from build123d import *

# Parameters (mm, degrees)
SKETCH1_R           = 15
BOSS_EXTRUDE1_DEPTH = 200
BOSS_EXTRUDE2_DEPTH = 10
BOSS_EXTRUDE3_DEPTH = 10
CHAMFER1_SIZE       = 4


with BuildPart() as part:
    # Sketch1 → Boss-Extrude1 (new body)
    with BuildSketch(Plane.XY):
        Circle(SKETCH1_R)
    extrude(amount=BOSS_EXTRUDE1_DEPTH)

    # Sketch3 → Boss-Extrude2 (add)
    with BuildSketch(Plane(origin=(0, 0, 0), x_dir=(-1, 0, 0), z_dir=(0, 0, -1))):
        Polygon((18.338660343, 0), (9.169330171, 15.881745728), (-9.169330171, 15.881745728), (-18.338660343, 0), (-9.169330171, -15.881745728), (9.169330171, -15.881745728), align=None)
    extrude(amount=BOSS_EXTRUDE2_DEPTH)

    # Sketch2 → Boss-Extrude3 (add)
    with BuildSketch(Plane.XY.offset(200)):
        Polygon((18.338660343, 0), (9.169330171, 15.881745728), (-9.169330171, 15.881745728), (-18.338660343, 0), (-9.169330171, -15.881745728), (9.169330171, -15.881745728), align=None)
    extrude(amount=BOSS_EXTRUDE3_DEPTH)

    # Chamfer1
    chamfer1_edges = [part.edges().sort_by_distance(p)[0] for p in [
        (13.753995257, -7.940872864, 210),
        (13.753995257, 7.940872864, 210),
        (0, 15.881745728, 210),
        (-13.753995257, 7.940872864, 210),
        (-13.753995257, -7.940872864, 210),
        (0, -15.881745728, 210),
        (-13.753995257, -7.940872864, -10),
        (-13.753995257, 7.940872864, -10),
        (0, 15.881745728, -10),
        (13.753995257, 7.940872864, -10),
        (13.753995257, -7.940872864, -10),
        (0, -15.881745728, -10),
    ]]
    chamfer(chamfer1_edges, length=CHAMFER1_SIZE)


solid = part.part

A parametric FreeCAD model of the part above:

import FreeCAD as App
import Part
import Sketcher
Q = App.Units.Quantity


def edges_at(feature, points):
    """Names of the edges that pass closest to the given points."""
    edges = feature.Shape.Edges
    near = lambda p: min(range(len(edges)), key=lambda i: edges[i].distToShape(Part.Vertex(*p))[0])
    return sorted({f"Edge{near(p) + 1}" for p in points})

doc = App.newDocument("Part")
params = doc.addObject("Spreadsheet::Sheet", "Params")
for row, (alias, value) in enumerate([
    ("sketch1_diameter", "30 mm"),
    ("pad1_length", "200 mm"),
    ("pad2_length", "10 mm"),
    ("pad3_length", "10 mm"),
    ("chamfer_size", "4 mm"),
], start=1):
    params.set(f"A{row}", alias)
    params.set(f"B{row}", "=" + value)
    params.setAlias(f"B{row}", alias)

body = doc.addObject("PartDesign::Body", "Body")

sketch1 = body.newObject("Sketcher::SketchObject", "Sketch")
sketch1.AttachmentSupport = (doc.getObject("XY_Plane"), [""])
sketch1.MapMode = "FlatFace"
sketch1.addGeometry(Part.Circle(App.Vector(0, 0, 0), App.Vector(0, 0, 1), 15), False)
sketch1.addConstraint([
    Sketcher.Constraint("Coincident", 0, 3, -1, 1),
    Sketcher.Constraint("Diameter", 0, Q("30 mm")),
])
sketch1.setExpression("Constraints[1]", "Params.sketch1_diameter")
pad1 = body.newObject("PartDesign::Pad", "Pad")
pad1.Profile = sketch1
pad1.setExpression("Length", "Params.pad1_length")

sketch2 = body.newObject("Sketcher::SketchObject", "Sketch001")
sketch2.AttachmentSupport = (doc.getObject("XY_Plane"), [""])
sketch2.MapMode = "FlatFace"
sketch2.addGeometry([
    Part.LineSegment(App.Vector(-18, 0, 0), App.Vector(-9, 16, 0)),
    Part.LineSegment(App.Vector(-9, 16, 0), App.Vector(9, 16, 0)),
    Part.LineSegment(App.Vector(9, 16, 0), App.Vector(18, 0, 0)),
    Part.LineSegment(App.Vector(18, 0, 0), App.Vector(9, -16, 0)),
    Part.LineSegment(App.Vector(9, -16, 0), App.Vector(-9, -16, 0)),
    Part.LineSegment(App.Vector(-9, -16, 0), App.Vector(-18, 0, 0)),
], False)
sketch2.addConstraint([
    Sketcher.Constraint("Coincident", 0, 2, 1, 1),
    Sketcher.Constraint("Coincident", 1, 2, 2, 1),
    Sketcher.Constraint("Coincident", 2, 2, 3, 1),
    Sketcher.Constraint("Coincident", 3, 2, 4, 1),
    Sketcher.Constraint("Coincident", 4, 2, 5, 1),
    Sketcher.Constraint("Coincident", 5, 2, 0, 1),
    Sketcher.Constraint("Horizontal", 1),
    Sketcher.Constraint("Horizontal", 4),
    Sketcher.Constraint("Symmetric", 0, 2, 3, 2, -1, 1),
    Sketcher.Constraint("Symmetric", 2, 2, 5, 2, -1, 1),
    Sketcher.Constraint("PointOnObject", 2, 2, -1),
    Sketcher.Constraint("Parallel", 2, 5),
    Sketcher.Constraint("Vertical", 1, 2, 3, 2),
    Sketcher.Constraint("Angle", 0, Q("60 deg")),
    Sketcher.Constraint("DistanceX", 1, 1, 1, 2, Q("18.33866 mm")),
    Sketcher.Constraint("Distance", 0, Q("18.33866 mm")),
])
pad2 = body.newObject("PartDesign::Pad", "Pad001")
pad2.Profile = sketch2
pad2.setExpression("Length", "Params.pad2_length")
pad2.Reversed = True

sketch3 = body.newObject("Sketcher::SketchObject", "Sketch002")
sketch3.AttachmentSupport = (doc.getObject("XY_Plane"), [""])
sketch3.MapMode = "FlatFace"
sketch3.AttachmentOffset = App.Placement(App.Vector(0, 0, 200), App.Rotation())
sketch3.addGeometry([
    Part.LineSegment(App.Vector(18, 0, 0), App.Vector(9, 16, 0)),
    Part.LineSegment(App.Vector(9, 16, 0), App.Vector(-9, 16, 0)),
    Part.LineSegment(App.Vector(-9, 16, 0), App.Vector(-18, 0, 0)),
    Part.LineSegment(App.Vector(-18, 0, 0), App.Vector(-9, -16, 0)),
    Part.LineSegment(App.Vector(-9, -16, 0), App.Vector(9, -16, 0)),
    Part.LineSegment(App.Vector(9, -16, 0), App.Vector(18, 0, 0)),
], False)
sketch3.addConstraint([
    Sketcher.Constraint("Coincident", 0, 2, 1, 1),
    Sketcher.Constraint("Coincident", 1, 2, 2, 1),
    Sketcher.Constraint("Coincident", 2, 2, 3, 1),
    Sketcher.Constraint("Coincident", 3, 2, 4, 1),
    Sketcher.Constraint("Coincident", 4, 2, 5, 1),
    Sketcher.Constraint("Coincident", 5, 2, 0, 1),
    Sketcher.Constraint("Horizontal", 1),
    Sketcher.Constraint("Horizontal", 4),
    Sketcher.Constraint("Symmetric", 0, 2, 3, 2, -1, 1),
    Sketcher.Constraint("Symmetric", 2, 2, 5, 2, -1, 1),
    Sketcher.Constraint("PointOnObject", 2, 2, -1),
    Sketcher.Constraint("Parallel", 2, 5),
    Sketcher.Constraint("Vertical", 1, 2, 3, 2),
    Sketcher.Constraint("Angle", 0, Q("120 deg")),
    Sketcher.Constraint("DistanceX", 1, 2, 1, 1, Q("18.33866 mm")),
    Sketcher.Constraint("Distance", 0, Q("18.33866 mm")),
])
pad3 = body.newObject("PartDesign::Pad", "Pad002")
pad3.Profile = sketch3
pad3.setExpression("Length", "Params.pad3_length")
doc.recompute()

chamfer = body.newObject("PartDesign::Chamfer", "Chamfer")
chamfer.Base = (pad3, edges_at(pad3, [
    (13.754, -7.941, 210),
    (13.754, 7.941, 210),
    (0, 15.882, 210),
    (-13.754, 7.941, 210),
    (-13.754, -7.941, 210),
    (0, -15.882, 210),
    (-13.754, -7.941, -10),
    (-13.754, 7.941, -10),
    (0, 15.882, -10),
    (13.754, 7.941, -10),
    (13.754, -7.941, -10),
    (0, -15.882, -10),
]))
chamfer.setExpression("Size", "Params.chamfer_size")

doc.recompute()
